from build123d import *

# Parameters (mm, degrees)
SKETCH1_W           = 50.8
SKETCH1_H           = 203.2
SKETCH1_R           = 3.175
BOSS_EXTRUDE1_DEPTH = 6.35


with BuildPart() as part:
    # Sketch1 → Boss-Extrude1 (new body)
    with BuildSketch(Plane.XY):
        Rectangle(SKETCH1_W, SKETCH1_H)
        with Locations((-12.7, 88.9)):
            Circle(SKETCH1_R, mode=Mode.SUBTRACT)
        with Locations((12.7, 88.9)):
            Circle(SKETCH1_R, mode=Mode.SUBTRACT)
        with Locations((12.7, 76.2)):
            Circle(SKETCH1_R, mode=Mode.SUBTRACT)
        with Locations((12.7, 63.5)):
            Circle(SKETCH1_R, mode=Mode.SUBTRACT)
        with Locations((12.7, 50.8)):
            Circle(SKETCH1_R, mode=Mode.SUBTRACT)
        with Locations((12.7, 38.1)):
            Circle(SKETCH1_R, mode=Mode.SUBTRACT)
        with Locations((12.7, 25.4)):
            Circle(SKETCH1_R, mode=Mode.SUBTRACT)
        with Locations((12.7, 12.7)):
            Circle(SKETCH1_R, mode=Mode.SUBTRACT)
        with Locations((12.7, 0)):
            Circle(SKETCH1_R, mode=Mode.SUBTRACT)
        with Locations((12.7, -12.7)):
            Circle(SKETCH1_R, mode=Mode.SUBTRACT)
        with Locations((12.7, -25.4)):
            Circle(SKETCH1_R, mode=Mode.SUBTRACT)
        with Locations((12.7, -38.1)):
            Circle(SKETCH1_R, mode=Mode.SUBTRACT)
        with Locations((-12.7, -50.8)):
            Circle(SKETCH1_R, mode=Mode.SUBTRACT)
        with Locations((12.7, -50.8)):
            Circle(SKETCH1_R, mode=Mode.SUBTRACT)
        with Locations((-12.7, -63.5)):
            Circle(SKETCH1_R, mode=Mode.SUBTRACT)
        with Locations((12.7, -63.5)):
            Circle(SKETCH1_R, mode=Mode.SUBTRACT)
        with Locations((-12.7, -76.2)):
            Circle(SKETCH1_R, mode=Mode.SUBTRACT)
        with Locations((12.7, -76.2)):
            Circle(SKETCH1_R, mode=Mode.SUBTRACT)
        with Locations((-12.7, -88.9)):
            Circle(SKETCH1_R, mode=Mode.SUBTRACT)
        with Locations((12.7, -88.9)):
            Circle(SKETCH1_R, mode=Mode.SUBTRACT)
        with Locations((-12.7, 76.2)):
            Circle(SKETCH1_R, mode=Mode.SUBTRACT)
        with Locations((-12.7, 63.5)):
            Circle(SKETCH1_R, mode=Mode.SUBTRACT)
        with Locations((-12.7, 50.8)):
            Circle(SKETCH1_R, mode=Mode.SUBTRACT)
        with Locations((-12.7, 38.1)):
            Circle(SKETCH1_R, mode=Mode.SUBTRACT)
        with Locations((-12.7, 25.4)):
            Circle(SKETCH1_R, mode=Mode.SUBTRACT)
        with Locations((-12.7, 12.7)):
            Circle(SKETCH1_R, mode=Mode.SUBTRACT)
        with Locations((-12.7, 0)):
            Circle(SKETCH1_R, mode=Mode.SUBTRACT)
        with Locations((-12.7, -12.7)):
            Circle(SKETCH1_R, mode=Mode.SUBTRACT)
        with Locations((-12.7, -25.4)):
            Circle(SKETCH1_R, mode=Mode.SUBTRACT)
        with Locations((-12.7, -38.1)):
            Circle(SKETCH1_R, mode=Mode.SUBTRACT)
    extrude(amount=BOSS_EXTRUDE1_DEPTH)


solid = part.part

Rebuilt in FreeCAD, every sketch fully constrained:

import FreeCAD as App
import Part
import Sketcher
from FreeCAD import Vector
Q = App.Units.Quantity

doc = App.newDocument("Part")
params = doc.addObject("Spreadsheet::Sheet", "Params")
for row, (alias, value) in enumerate([
    ("sketch1_diameter", "0.25 in"),
    ("sketch1_width", "2 in"),
    ("sketch1_height", "8 in"),
    ("pad1_length", "0.25 in"),
], start=1):
    params.set(f"A{row}", alias)
    params.set(f"B{row}", "=" + value)
    params.setAlias(f"B{row}", alias)

body = doc.addObject("PartDesign::Body", "Body")

# Sketch on XY plane
sketch1 = body.newObject("Sketcher::SketchObject", "Sketch")
sketch1.AttachmentSupport = (doc.getObject("XY_Plane"), [""])
sketch1.MapMode = "FlatFace"
sketch1.addGeometry([
    Part.LineSegment(Vector(-25.4, 101.6, 0), Vector(-25.4, -101.6, 0)),  # 0
    Part.LineSegment(Vector(-25.4, -101.6, 0), Vector(25.4, -101.6, 0)),  # 1
    Part.LineSegment(Vector(25.4, -101.6, 0), Vector(25.4, 101.6, 0)),  # 2
    Part.LineSegment(Vector(25.4, 101.6, 0), Vector(-25.4, 101.6, 0)),  # 3
    Part.Circle(Vector(-12.7, -88.9, 0), Vector(0, 0, 1), 3.2),  # 4
    Part.Circle(Vector(-12.7, -76.2, 0), Vector(0, 0, 1), 3.2),  # 5
    Part.Circle(Vector(-12.7, -63.5, 0), Vector(0, 0, 1), 3.2),  # 6
    Part.Circle(Vector(-12.7, -50.8, 0), Vector(0, 0, 1), 3.2),  # 7
    Part.Circle(Vector(-12.7, -38.1, 0), Vector(0, 0, 1), 3.2),  # 8
    Part.Circle(Vector(-12.7, -25.4, 0), Vector(0, 0, 1), 3.2),  # 9
    Part.Circle(Vector(-12.7, -12.7, 0), Vector(0, 0, 1), 3.2),  # 10
    Part.Circle(Vector(12.7, -88.9, 0), Vector(0, 0, 1), 3.2),  # 11
    Part.Circle(Vector(12.7, -76.2, 0), Vector(0, 0, 1), 3.2),  # 12
    Part.Circle(Vector(12.7, -63.5, 0), Vector(0, 0, 1), 3.2),  # 13
    Part.Circle(Vector(12.7, -50.8, 0), Vector(0, 0, 1), 3.2),  # 14
    Part.Circle(Vector(12.7, -38.1, 0), Vector(0, 0, 1), 3.2),  # 15
    Part.Circle(Vector(12.7, -25.4, 0), Vector(0, 0, 1), 3.2),  # 16
    Part.Circle(Vector(12.7, -12.7, 0), Vector(0, 0, 1), 3.2),  # 17
    Part.Circle(Vector(-12.7, 0, 0), Vector(0, 0, 1), 3.2),  # 18
    Part.Circle(Vector(-12.7, 12.7, 0), Vector(0, 0, 1), 3.2),  # 19
    Part.Circle(Vector(-12.7, 25.4, 0), Vector(0, 0, 1), 3.2),  # 20
    Part.Circle(Vector(-12.7, 38.1, 0), Vector(0, 0, 1), 3.2),  # 21
    Part.Circle(Vector(-12.7, 50.8, 0), Vector(0, 0, 1), 3.2),  # 22
    Part.Circle(Vector(-12.7, 63.5, 0), Vector(0, 0, 1), 3.2),  # 23
    Part.Circle(Vector(-12.7, 76.2, 0), Vector(0, 0, 1), 3.2),  # 24
    Part.Circle(Vector(-12.7, 88.9, 0), Vector(0, 0, 1), 3.2),  # 25
    Part.Circle(Vector(12.7, 0, 0), Vector(0, 0, 1), 3.2),  # 26
    Part.Circle(Vector(12.7, 12.7, 0), Vector(0, 0, 1), 3.2),  # 27
    Part.Circle(Vector(12.7, 25.4, 0), Vector(0, 0, 1), 3.2),  # 28
    Part.Circle(Vector(12.7, 38.1, 0), Vector(0, 0, 1), 3.2),  # 29
    Part.Circle(Vector(12.7, 50.8, 0), Vector(0, 0, 1), 3.2),  # 30
    Part.Circle(Vector(12.7, 63.5, 0), Vector(0, 0, 1), 3.2),  # 31
    Part.Circle(Vector(12.7, 76.2, 0), Vector(0, 0, 1), 3.2),  # 32
    Part.Circle(Vector(12.7, 88.9, 0), Vector(0, 0, 1), 3.2),  # 33
], False)
sketch1.addConstraint([
    Sketcher.Constraint("Coincident", 0, 2, 1, 1),
    Sketcher.Constraint("Coincident", 1, 2, 2, 1),
    Sketcher.Constraint("Coincident", 2, 2, 3, 1),
    Sketcher.Constraint("Coincident", 3, 2, 0, 1),
    Sketcher.Constraint("Vertical", 0),
    Sketcher.Constraint("Horizontal", 1),
    Sketcher.Constraint("Vertical", 2),
    Sketcher.Constraint("Horizontal", 3),
    Sketcher.Constraint("Equal", 4, 5),
    Sketcher.Constraint("Equal", 5, 6),
    Sketcher.Constraint("Equal", 6, 7),
    Sketcher.Constraint("Equal", 7, 8),
    Sketcher.Constraint("Equal", 8, 9),
    Sketcher.Constraint("Equal", 9, 10),
    Sketcher.Constraint("Equal", 10, 11),
    Sketcher.Constraint("Equal", 11, 12),
    Sketcher.Constraint("Equal", 12, 13),
    Sketcher.Constraint("Equal", 13, 14),
    Sketcher.Constraint("Equal", 14, 15),
    Sketcher.Constraint("Equal", 15, 16),
    Sketcher.Constraint("Equal", 16, 17),
    Sketcher.Constraint("Equal", 17, 18),
    Sketcher.Constraint("Equal", 18, 19),
    Sketcher.Constraint("Equal", 19, 20),
    Sketcher.Constraint("Equal", 20, 21),
    Sketcher.Constraint("Equal", 21, 22),
    Sketcher.Constraint("Equal", 22, 23),
    Sketcher.Constraint("Equal", 23, 24),
    Sketcher.Constraint("Equal", 24, 25),
    Sketcher.Constraint("Equal", 25, 26),
    Sketcher.Constraint("Equal", 26, 27),
    Sketcher.Constraint("Equal", 27, 28),
    Sketcher.Constraint("Equal", 28, 29),
    Sketcher.Constraint("Equal", 29, 30),
    Sketcher.Constraint("Equal", 30, 31),
    Sketcher.Constraint("Equal", 31, 32),
    Sketcher.Constraint("Equal", 32, 33),
    Sketcher.Constraint("Symmetric", 17, 3, 19, 3, -1, 1),
    Sketcher.Constraint("Symmetric", 16, 3, 20, 3, -1, 1),
    Sketcher.Constraint("Symmetric", 15, 3, 21, 3, -1, 1),
    Sketcher.Constraint("Symmetric", 14, 3, 22, 3, -1, 1),
    Sketcher.Constraint("Symmetric", 13, 3, 23, 3, -1, 1),
    Sketcher.Constraint("Symmetric", 12, 3, 24, 3, -1, 1),
    Sketcher.Constraint("Symmetric", 11, 3, 25, 3, -1, 1),
    Sketcher.Constraint("Symmetric", 18, 3, 26, 3, -1, 1),
    Sketcher.Constraint("Symmetric", 10, 3, 27, 3, -1, 1),
    Sketcher.Constraint("Symmetric", 9, 3, 28, 3, -1, 1),
    Sketcher.Constraint("Symmetric", 8, 3, 29, 3, -1, 1),
    Sketcher.Constraint("Symmetric", 7, 3, 30, 3, -1, 1),
    Sketcher.Constraint("Symmetric", 6, 3, 31, 3, -1, 1),
    Sketcher.Constraint("Symmetric", 5, 3, 32, 3, -1, 1),
    Sketcher.Constraint("Symmetric", 4, 3, 33, 3, -1, 1),
    Sketcher.Constraint("Symmetric", 0, 2, 2, 2, -1, 1),
    Sketcher.Constraint("Symmetric", 4, 3, 11, 3, -2),
    Sketcher.Constraint("Symmetric", 5, 3, 12, 3, -2),
    Sketcher.Constraint("Symmetric", 6, 3, 13, 3, -2),
    Sketcher.Constraint("Symmetric", 7, 3, 14, 3, -2),
    Sketcher.Constraint("Symmetric", 8, 3, 15, 3, -2),
    Sketcher.Constraint("Symmetric", 9, 3, 16, 3, -2),
    Sketcher.Constraint("Symmetric", 10, 3, 17, 3, -2),
    Sketcher.Constraint("PointOnObject", 18, 3, -1),
    Sketcher.Constraint("Vertical", 4, 3, 5, 3),
    Sketcher.Constraint("Vertical", 5, 3, 6, 3),
    Sketcher.Constraint("Vertical", 6, 3, 7, 3),
    Sketcher.Constraint("Vertical", 7, 3, 8, 3),
    Sketcher.Constraint("Vertical", 8, 3, 9, 3),
    Sketcher.Constraint("Vertical", 9, 3, 10, 3),
    Sketcher.Constraint("Vertical", 10, 3, 18, 3),
    Sketcher.Constraint("Diameter", 4, Q("0.25 in")),
    Sketcher.Constraint("DistanceX", 1, 1, 1, 2, Q("2 in")),
    Sketcher.Constraint("DistanceY", 0, 2, 0, 1, Q("8 in")),
    Sketcher.Constraint("DistanceY", 5, 3, -1, 1, Q("3 in")),
    Sketcher.Constraint("DistanceY", 7, 3, -1, 1, Q("2 in")),
    Sketcher.Constraint("DistanceY", 9, 3, -1, 1, Q("1 in")),
    Sketcher.Constraint("DistanceY", 4, 3, 6, 3, Q("1 in")),
    Sketcher.Constraint("DistanceY", 6, 3, 8, 3, Q("1 in")),
    Sketcher.Constraint("DistanceY", 8, 3, 10, 3, Q("1 in")),
    Sketcher.Constraint("DistanceX", 4, 3, 11, 3, Q("1 in")),
    Sketcher.Constraint("DistanceY", 10, 3, 19, 3, Q("1 in")),
])
sketch1.setExpression("Constraints[68]", "Params.sketch1_diameter")
sketch1.setExpression("Constraints[69]", "Params.sketch1_width")
sketch1.setExpression("Constraints[70]", "Params.sketch1_height")
pad1 = body.newObject("PartDesign::Pad", "Pad")
pad1.Profile = sketch1
pad1.setExpression("Length", "Params.pad1_length")

doc.recompute()
